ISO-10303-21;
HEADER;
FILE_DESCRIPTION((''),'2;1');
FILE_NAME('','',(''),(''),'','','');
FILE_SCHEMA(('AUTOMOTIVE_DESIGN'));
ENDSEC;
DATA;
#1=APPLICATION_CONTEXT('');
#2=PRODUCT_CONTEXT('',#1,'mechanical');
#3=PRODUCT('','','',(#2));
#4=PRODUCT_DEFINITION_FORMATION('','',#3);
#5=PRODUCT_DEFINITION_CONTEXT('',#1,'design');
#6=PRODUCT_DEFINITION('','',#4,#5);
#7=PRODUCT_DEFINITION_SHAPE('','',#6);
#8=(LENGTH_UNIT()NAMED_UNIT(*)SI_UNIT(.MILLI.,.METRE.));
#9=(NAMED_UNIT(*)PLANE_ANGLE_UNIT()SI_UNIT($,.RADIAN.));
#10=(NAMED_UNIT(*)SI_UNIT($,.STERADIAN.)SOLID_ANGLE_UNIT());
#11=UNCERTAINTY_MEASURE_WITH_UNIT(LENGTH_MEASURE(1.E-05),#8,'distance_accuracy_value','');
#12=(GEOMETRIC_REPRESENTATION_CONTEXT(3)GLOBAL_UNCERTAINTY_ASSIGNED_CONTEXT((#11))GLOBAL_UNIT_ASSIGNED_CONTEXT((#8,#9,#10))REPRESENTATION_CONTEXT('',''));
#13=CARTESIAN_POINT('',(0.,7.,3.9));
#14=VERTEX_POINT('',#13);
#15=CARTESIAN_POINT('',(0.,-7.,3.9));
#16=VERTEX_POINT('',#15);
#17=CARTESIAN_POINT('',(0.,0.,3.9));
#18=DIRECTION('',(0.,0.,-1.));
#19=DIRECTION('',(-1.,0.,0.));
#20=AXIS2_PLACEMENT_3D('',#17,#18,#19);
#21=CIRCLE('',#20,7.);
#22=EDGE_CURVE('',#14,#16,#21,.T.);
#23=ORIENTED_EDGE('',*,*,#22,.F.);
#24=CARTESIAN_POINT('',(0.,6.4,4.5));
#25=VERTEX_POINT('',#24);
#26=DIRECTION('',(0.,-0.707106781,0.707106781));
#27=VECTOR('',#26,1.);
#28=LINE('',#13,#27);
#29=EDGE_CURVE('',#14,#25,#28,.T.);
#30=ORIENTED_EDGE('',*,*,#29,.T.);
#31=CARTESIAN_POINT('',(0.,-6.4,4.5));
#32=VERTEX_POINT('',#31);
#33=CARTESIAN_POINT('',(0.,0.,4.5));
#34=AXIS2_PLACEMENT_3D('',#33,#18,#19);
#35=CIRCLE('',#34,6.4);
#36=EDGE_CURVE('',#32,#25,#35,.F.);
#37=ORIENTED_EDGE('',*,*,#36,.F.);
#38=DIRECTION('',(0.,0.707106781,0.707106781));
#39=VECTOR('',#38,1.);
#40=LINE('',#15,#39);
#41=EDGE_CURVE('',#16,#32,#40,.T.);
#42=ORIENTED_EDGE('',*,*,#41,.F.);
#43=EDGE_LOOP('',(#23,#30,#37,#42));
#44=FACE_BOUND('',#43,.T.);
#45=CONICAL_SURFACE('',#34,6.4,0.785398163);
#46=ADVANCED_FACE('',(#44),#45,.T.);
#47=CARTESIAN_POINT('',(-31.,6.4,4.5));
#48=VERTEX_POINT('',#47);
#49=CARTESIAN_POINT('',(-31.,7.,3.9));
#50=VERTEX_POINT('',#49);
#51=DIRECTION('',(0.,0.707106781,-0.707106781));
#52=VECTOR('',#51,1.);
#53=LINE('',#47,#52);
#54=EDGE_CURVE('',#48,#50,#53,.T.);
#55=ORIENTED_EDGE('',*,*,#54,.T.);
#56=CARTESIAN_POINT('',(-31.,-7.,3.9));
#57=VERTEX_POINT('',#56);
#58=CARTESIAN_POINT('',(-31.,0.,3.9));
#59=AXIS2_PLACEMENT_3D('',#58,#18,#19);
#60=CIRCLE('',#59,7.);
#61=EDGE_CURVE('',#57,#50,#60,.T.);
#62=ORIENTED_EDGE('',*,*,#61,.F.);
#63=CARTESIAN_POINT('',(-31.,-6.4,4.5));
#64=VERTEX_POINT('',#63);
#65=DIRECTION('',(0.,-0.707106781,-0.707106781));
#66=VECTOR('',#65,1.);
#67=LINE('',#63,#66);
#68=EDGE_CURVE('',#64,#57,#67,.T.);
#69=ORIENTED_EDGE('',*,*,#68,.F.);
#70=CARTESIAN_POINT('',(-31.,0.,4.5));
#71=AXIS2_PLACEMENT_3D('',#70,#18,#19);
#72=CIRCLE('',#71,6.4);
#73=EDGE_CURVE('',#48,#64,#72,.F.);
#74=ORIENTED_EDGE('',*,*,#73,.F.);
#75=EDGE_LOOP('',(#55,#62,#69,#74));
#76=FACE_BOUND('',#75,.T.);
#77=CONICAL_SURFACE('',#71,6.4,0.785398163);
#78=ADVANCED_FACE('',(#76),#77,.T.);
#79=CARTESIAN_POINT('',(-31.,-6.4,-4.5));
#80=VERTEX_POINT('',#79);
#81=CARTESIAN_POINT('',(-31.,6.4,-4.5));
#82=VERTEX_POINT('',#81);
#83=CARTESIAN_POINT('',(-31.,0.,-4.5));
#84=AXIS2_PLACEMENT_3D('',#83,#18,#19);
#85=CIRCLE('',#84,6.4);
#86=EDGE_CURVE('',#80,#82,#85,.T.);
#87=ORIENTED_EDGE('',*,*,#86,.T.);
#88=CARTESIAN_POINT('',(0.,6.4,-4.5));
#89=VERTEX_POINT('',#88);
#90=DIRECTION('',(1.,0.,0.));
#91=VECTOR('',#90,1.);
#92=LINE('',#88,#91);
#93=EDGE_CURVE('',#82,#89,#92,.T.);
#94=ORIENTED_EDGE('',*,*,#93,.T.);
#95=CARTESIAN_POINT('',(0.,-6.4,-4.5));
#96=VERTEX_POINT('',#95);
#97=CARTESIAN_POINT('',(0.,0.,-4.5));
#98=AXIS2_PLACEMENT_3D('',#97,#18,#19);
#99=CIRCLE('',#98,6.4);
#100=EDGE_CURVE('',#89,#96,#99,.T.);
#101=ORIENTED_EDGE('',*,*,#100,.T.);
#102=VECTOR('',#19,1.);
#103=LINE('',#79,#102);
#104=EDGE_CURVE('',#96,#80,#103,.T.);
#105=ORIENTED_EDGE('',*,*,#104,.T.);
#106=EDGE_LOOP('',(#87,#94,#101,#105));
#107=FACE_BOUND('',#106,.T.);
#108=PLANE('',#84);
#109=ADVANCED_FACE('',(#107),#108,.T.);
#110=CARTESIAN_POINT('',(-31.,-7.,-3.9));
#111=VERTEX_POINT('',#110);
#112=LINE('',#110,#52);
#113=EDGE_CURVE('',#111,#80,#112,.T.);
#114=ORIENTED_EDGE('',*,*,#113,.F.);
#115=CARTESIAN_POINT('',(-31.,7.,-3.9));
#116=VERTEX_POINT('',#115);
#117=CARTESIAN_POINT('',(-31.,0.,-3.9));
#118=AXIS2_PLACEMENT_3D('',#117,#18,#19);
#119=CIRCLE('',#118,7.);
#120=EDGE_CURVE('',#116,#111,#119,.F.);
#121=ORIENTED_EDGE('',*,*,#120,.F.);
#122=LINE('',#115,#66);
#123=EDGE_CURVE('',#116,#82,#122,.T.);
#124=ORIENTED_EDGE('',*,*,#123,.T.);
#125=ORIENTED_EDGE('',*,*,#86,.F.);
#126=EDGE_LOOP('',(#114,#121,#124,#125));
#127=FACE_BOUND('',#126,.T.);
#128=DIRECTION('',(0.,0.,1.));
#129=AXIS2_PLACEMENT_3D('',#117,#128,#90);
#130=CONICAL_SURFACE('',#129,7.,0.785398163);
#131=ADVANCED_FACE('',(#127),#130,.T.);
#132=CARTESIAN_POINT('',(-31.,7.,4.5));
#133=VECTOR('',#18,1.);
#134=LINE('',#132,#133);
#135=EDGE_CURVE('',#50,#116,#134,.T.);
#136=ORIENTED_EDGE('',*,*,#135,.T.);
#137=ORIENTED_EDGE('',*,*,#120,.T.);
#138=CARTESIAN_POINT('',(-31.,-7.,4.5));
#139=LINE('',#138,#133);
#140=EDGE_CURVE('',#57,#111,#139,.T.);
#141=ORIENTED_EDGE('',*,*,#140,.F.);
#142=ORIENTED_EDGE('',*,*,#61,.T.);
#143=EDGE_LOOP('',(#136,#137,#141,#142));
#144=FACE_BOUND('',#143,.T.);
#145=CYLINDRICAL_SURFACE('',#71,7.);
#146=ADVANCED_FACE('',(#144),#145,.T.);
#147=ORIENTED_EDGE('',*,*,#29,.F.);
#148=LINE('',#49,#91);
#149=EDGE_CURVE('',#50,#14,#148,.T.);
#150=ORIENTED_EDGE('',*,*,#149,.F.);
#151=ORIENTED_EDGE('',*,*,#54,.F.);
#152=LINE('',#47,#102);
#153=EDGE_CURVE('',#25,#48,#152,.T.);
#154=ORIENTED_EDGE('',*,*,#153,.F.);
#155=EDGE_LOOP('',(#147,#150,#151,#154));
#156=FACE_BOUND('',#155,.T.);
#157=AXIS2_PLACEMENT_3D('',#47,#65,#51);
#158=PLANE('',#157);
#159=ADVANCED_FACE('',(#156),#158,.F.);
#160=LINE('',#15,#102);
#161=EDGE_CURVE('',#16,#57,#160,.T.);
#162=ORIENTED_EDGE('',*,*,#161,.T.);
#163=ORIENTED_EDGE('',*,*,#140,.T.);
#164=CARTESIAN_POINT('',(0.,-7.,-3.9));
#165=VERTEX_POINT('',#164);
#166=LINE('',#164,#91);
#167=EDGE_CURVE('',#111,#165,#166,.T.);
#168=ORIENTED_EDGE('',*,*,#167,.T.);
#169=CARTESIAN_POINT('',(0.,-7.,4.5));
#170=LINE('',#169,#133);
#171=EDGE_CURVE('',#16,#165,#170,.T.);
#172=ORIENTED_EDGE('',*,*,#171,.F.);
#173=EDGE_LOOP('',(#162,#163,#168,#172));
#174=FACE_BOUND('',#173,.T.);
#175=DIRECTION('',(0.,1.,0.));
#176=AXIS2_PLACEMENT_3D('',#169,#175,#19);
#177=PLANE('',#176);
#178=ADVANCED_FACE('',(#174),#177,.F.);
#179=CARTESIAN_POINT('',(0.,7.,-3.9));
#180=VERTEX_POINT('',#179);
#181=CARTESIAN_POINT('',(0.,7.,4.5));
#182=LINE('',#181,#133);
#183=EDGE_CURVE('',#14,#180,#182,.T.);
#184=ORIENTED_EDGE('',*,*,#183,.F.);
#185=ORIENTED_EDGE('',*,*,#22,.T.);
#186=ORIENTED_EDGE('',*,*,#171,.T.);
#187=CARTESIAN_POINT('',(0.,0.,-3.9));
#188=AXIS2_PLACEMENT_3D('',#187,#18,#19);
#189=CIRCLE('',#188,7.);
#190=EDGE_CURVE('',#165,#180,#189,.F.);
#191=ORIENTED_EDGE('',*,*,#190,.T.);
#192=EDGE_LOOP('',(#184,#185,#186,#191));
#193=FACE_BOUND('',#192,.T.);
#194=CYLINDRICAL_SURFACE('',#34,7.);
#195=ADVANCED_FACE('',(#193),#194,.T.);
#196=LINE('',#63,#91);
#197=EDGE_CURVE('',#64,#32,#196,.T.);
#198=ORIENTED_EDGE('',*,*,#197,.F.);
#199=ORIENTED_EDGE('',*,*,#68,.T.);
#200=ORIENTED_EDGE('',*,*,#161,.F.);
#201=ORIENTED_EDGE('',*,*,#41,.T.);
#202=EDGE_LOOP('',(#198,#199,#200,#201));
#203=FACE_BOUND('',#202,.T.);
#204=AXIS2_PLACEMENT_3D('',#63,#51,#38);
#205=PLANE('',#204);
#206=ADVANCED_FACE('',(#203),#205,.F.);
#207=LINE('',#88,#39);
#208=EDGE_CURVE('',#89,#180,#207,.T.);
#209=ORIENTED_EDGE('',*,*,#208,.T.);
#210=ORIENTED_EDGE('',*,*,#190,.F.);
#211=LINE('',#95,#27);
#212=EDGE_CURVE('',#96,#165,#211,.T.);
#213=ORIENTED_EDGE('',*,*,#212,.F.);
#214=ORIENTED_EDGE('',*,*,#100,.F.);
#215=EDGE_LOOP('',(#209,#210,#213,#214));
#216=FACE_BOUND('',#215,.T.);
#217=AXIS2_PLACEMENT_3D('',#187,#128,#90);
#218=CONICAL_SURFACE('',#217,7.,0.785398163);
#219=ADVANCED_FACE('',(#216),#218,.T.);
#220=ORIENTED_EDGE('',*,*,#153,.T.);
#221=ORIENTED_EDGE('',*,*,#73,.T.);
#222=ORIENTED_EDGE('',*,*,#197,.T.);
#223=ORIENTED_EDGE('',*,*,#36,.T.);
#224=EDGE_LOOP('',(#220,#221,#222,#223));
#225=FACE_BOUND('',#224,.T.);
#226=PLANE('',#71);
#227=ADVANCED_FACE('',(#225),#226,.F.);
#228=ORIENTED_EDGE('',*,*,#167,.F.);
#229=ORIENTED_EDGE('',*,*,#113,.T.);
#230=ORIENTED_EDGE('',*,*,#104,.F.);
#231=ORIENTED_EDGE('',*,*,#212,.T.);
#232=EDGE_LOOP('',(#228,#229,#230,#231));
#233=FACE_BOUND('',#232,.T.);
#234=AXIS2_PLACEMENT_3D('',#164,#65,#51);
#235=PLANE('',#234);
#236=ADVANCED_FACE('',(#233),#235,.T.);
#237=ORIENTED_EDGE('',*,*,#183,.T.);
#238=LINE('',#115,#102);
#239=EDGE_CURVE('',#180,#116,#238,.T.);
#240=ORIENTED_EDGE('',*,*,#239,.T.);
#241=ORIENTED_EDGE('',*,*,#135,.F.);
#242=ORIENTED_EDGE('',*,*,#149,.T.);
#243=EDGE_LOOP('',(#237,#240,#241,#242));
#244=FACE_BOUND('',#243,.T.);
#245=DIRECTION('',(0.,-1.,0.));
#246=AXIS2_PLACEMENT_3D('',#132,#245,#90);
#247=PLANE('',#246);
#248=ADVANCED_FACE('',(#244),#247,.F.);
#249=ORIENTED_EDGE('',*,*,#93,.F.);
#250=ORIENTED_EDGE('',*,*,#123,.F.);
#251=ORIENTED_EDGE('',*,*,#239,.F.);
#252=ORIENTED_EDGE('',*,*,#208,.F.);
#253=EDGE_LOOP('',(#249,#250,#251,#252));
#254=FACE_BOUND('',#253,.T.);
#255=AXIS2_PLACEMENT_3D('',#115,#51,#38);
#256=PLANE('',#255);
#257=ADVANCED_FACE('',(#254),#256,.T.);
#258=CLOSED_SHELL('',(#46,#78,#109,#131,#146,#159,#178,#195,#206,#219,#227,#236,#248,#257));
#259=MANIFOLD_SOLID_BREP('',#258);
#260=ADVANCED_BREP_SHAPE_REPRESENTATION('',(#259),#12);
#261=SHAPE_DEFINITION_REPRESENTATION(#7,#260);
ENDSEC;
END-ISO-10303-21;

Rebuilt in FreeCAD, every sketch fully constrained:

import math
import FreeCAD as App
import Part
import Sketcher
Q = App.Units.Quantity


def edges_at(feature, points):
    """Names of the edges that pass closest to the given points."""
    edges = feature.Shape.Edges
    near = lambda p: min(range(len(edges)), key=lambda i: edges[i].distToShape(Part.Vertex(*p))[0])
    return sorted({f"Edge{near(p) + 1}" for p in points})

doc = App.newDocument("Part")
params = doc.addObject("Spreadsheet::Sheet", "Params")
for row, (alias, value) in enumerate([
    ("sketch1_radius", "7 mm"),
    ("sketch1_width", "31 mm"),
    ("pad1_length", "9 mm"),
    ("chamfer_size", "0.6 mm"),
], start=1):
    params.set(f"A{row}", alias)
    params.set(f"B{row}", "=" + value)
    params.setAlias(f"B{row}", alias)

body = doc.addObject("PartDesign::Body", "Body")

# Sketch on XY plane
sketch1 = doc.addObject("Sketcher::SketchObject", "Sketch")
body.addObject(sketch1)
sketch1.AttachmentSupport = (doc.XY_Plane, [""])
sketch1.MapMode = "FlatFace"
sketch1.addGeometry(Part.LineSegment(App.Vector(0, 7, 0), App.Vector(-31, 7, 0)), False)
sketch1.addGeometry(Part.ArcOfCircle(Part.Circle(App.Vector(-31, 0, 0), App.Vector(0, 0, 1), 7), math.radians(90), math.radians(270)), False)
sketch1.addGeometry(Part.LineSegment(App.Vector(-31, -7, 0), App.Vector(0, -7, 0)), False)
sketch1.addGeometry(Part.ArcOfCircle(Part.Circle(App.Vector(0, 0, 0), App.Vector(0, 0, 1), 7), math.radians(-90), math.radians(90)), False)
sketch1.addConstraint(Sketcher.Constraint("Tangent", 0, 2, 1, 1))
sketch1.addConstraint(Sketcher.Constraint("Tangent", 1, 2, 2, 1))
sketch1.addConstraint(Sketcher.Constraint("Tangent", 2, 2, 3, 1))
sketch1.addConstraint(Sketcher.Constraint("Tangent", 3, 2, 0, 1))
sketch1.addConstraint(Sketcher.Constraint("Horizontal", 0))
sketch1.addConstraint(Sketcher.Constraint("Horizontal", 2))
sketch1.addConstraint(Sketcher.Constraint("Coincident", 3, 3, -1, 1))
sketch1.addConstraint(Sketcher.Constraint("Radius", 1, Q("7 mm")))
sketch1.addConstraint(Sketcher.Constraint("DistanceX", 0, 2, 0, 1, Q("31 mm")))
sketch1.setExpression("Constraints[7]", "Params.sketch1_radius")
sketch1.setExpression("Constraints[8]", "Params.sketch1_width")
pad1 = doc.addObject("PartDesign::Pad", "Pad")
body.addObject(pad1)
pad1.Profile = sketch1
pad1.setExpression("Length", "Params.pad1_length")
pad1.Midplane = True
doc.recompute()

chamfer = doc.addObject("PartDesign::Chamfer", "Chamfer")
body.addObject(chamfer)
chamfer.Base = (pad1, edges_at(pad1, [
    (7, 0, 4.5),
    (-15.5, 7, 4.5),
    (-38, 0, 4.5),
    (-15.5, 7, -4.5),
    (7, 0, -4.5),
    (-15.5, -7, -4.5),
    (-38, 0, -4.5),
    (-15.5, -7, 4.5),
]))
chamfer.setExpression("Size", "Params.chamfer_size")

doc.recompute()
